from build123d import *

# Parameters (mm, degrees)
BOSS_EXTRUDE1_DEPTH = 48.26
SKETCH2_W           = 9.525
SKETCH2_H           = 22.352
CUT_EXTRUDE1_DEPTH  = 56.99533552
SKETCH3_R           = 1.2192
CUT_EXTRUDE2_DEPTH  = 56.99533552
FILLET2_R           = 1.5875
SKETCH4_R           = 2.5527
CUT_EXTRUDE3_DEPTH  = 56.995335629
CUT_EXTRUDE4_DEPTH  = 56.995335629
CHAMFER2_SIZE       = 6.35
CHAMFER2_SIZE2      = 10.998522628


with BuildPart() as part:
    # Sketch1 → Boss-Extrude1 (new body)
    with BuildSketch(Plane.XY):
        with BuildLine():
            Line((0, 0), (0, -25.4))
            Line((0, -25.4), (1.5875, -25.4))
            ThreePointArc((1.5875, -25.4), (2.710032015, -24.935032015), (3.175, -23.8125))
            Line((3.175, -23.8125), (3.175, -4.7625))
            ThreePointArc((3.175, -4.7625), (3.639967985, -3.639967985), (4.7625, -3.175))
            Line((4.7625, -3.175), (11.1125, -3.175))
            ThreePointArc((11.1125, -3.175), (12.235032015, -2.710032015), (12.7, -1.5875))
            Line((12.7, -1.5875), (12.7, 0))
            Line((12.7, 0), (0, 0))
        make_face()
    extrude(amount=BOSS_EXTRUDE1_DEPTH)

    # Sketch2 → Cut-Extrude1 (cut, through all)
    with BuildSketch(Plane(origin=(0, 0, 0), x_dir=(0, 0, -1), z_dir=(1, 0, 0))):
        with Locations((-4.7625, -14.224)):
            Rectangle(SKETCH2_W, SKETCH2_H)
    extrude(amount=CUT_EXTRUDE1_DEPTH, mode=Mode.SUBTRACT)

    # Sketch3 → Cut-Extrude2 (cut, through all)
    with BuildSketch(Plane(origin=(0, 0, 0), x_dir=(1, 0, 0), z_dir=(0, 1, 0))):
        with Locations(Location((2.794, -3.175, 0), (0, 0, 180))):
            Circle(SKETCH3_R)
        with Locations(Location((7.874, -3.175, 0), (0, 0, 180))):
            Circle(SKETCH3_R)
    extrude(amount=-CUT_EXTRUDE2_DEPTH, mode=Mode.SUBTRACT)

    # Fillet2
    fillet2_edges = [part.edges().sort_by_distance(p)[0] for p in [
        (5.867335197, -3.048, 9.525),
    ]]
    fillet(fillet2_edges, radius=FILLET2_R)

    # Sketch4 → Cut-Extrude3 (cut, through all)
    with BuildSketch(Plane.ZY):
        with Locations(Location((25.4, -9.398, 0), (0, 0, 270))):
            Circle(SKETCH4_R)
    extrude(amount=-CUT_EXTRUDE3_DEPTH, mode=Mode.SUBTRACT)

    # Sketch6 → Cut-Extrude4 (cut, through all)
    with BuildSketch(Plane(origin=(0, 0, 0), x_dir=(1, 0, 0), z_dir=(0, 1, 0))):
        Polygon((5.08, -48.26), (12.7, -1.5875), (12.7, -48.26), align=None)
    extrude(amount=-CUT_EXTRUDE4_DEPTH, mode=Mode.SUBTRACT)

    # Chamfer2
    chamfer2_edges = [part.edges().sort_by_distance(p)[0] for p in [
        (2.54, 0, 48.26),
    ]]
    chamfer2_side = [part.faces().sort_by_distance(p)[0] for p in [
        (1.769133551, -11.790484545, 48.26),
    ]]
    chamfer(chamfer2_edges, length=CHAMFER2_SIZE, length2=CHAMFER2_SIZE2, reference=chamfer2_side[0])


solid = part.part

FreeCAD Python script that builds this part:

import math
import FreeCAD as App
import Part
import Sketcher

V = App.Vector
Q = App.Units.Quantity


def edges_at(feature, points):
    """Names of the edges that pass closest to the given points."""
    edges = feature.Shape.Edges
    near = lambda p: min(range(len(edges)), key=lambda i: edges[i].distToShape(Part.Vertex(*p))[0])
    return sorted({f"Edge{near(p) + 1}" for p in points})


def add_polygon(sketch, points):
    """Adds a closed chain of lines whose ends are joined by coincident constraints."""
    first, n = sketch.GeometryCount, len(points)
    for a, b in zip(points, points[1:] + points[:1]):
        sketch.addGeometry(Part.LineSegment(App.Vector(*a, 0), App.Vector(*b, 0)), False)
    for i in range(n):
        sketch.addConstraint(Sketcher.Constraint("Coincident", first + i, 2, first + (i + 1) % n, 1))

doc = App.newDocument("Part")
params = doc.addObject("Spreadsheet::Sheet", "Params")
for row, (alias, value) in enumerate([
    ("sketch1_height", "1 in"),
    ("sketch1_width", "0.5 in"),
    ("sketch1_radius", "0.0625 in"),
    ("sketch1_width2", "0.25 in"),
    ("pad1_length", "1.9 in"),
    ("sketch2_width", "0.88 in"),
    ("sketch2_height", "0.375 in"),
    ("sketch3_diameter", "0.096 in"),
    ("fillet_radius", "0.0625 in"),
    ("sketch4_diameter", "0.201 in"),
    ("sketch5_width", "0.3 in"),
    ("chamfer_size", "0.25 in"),
    ("chamfer_size2", "10.998523 mm"),
], start=1):
    params.set(f"A{row}", alias)
    params.set(f"B{row}", "=" + value)
    params.setAlias(f"B{row}", alias)

body = doc.addObject("PartDesign::Body", "Body")

sketch1 = body.newObject("Sketcher::SketchObject", "Sketch")
sketch1.AttachmentSupport = (doc.getObject("XY_Plane"), [""])
sketch1.MapMode = "FlatFace"
sketch1.addGeometry([
    Part.LineSegment(V(0, 0, 0), V(0, -25.4, 0)),
    Part.LineSegment(V(0, -25.4, 0), V(1.5875, -25.4, 0)),
    Part.ArcOfCircle(Part.Circle(V(1.5875, -23.8125, 0), V(0, 0, 1), 1.5875), math.radians(-90), math.radians(0)),
    Part.LineSegment(V(3.175, -23.8125, 0), V(3.175, -4.7625, 0)),
    Part.ArcOfCircle(Part.Circle(V(4.7625, -4.7625, 0), V(0, 0, 1), 1.5875), math.radians(90), math.radians(180)),
    Part.LineSegment(V(4.7625, -3.175, 0), V(11.1125, -3.175, 0)),
    Part.ArcOfCircle(Part.Circle(V(11.1125, -1.5875, 0), V(0, 0, 1), 1.5875), math.radians(-90), math.radians(0)),
    Part.LineSegment(V(12.7, -1.5875, 0), V(12.7, 0, 0)),
    Part.LineSegment(V(12.7, 0, 0), V(0, 0, 0)),
], False)
sketch1.addConstraint([
    Sketcher.Constraint("Coincident", 0, 2, 1, 1),
    Sketcher.Constraint("Tangent", 1, 2, 2, 1),
    Sketcher.Constraint("Tangent", 2, 2, 3, 1),
    Sketcher.Constraint("Tangent", 3, 2, 4, 2),
    Sketcher.Constraint("Tangent", 4, 1, 5, 1),
    Sketcher.Constraint("Tangent", 5, 2, 6, 1),
    Sketcher.Constraint("Tangent", 6, 2, 7, 1),
    Sketcher.Constraint("Coincident", 7, 2, 8, 1),
    Sketcher.Constraint("Coincident", 8, 2, 0, 1),
    Sketcher.Constraint("Vertical", 0),
    Sketcher.Constraint("Horizontal", 1),
    Sketcher.Constraint("Vertical", 3),
    Sketcher.Constraint("Horizontal", 5),
    Sketcher.Constraint("Vertical", 7),
    Sketcher.Constraint("Horizontal", 8),
    Sketcher.Constraint("Coincident", 8, 2, -1, 1),
    Sketcher.Constraint("Equal", 2, 4),
    Sketcher.Constraint("Equal", 4, 6),
    Sketcher.Constraint("Equal", 1, 7),
    Sketcher.Constraint("DistanceY", 0, 2, 0, 1, Q("1 in")),
    Sketcher.Constraint("DistanceX", 8, 2, 8, 1, Q("0.5 in")),
    Sketcher.Constraint("Radius", 2, Q("0.0625 in")),
    Sketcher.Constraint("DistanceX", 5, 1, 5, 2, Q("0.25 in")),
])
sketch1.setExpression("Constraints[19]", "Params.sketch1_height")
sketch1.setExpression("Constraints[20]", "Params.sketch1_width")
sketch1.setExpression("Constraints[21]", "Params.sketch1_radius")
sketch1.setExpression("Constraints[22]", "Params.sketch1_width2")
pad1 = body.newObject("PartDesign::Pad", "Pad")
pad1.Profile = sketch1
pad1.setExpression("Length", "Params.pad1_length")

sketch2 = body.newObject("Sketcher::SketchObject", "Sketch001")
sketch2.AttachmentSupport = (doc.getObject("YZ_Plane"), [""])
sketch2.MapMode = "FlatFace"
add_polygon(sketch2, [(-3.048, 9.525), (-25.4, 9.525), (-25.4, 0), (-3.048, 0)])
sketch2.addConstraint([
    Sketcher.Constraint("Horizontal", 0),
    Sketcher.Constraint("Vertical", 1),
    Sketcher.Constraint("Horizontal", 2),
    Sketcher.Constraint("Vertical", 3),
    Sketcher.Constraint("PointOnObject", 1, 2, -1),
    Sketcher.Constraint("DistanceX", 0, 2, -1, 1, Q("1 in")),
    Sketcher.Constraint("DistanceX", 0, 2, 0, 1, Q("0.88 in")),
    Sketcher.Constraint("DistanceY", 1, 2, 1, 1, Q("0.375 in")),
])
sketch2.setExpression("Constraints[10]", "Params.sketch2_width")
sketch2.setExpression("Constraints[11]", "Params.sketch2_height")
pocket1 = body.newObject("PartDesign::Pocket", "Pocket")
pocket1.Profile = sketch2
pocket1.Type = "ThroughAll"
pocket1.Reversed = True

sketch3 = body.newObject("Sketcher::SketchObject", "Sketch002")
sketch3.AttachmentSupport = (doc.getObject("XZ_Plane"), [""])
sketch3.MapMode = "FlatFace"
sketch3.addGeometry([
    Part.Circle(V(2.794, 3.175, 0), V(0, 0, 1), 1.2192),
    Part.Circle(V(7.874, 3.175, 0), V(0, 0, 1), 1.2192),
], False)
sketch3.addConstraint([
    Sketcher.Constraint("Equal", 0, 1),
    Sketcher.Constraint("Horizontal", 0, 3, 1, 3),
    Sketcher.Constraint("Diameter", 0, Q("0.096 in")),
    Sketcher.Constraint("DistanceX", 0, 3, 1, 3, Q("0.2 in")),
    Sketcher.Constraint("DistanceX", -1, 1, 0, 3, Q("0.11 in")),
    Sketcher.Constraint("DistanceY", -1, 1, 0, 3, Q("0.125 in")),
])
sketch3.setExpression("Constraints[2]", "Params.sketch3_diameter")
pocket2 = body.newObject("PartDesign::Pocket", "Pocket001")
pocket2.Profile = sketch3
pocket2.Type = "ThroughAll"
pocket2.Reversed = True
doc.recompute()

fillet = body.newObject("PartDesign::Fillet", "Fillet")
fillet.Base = (pocket2, edges_at(pocket2, [(5.867, -3.048, 9.525)]))
fillet.setExpression("Radius", "Params.fillet_radius")

sketch4 = body.newObject("Sketcher::SketchObject", "Sketch003")
sketch4.AttachmentSupport = (doc.getObject("YZ_Plane"), [""])
sketch4.MapMode = "FlatFace"
sketch4.addGeometry(Part.Circle(V(-9.398, 25.4, 0), V(0, 0, 1), 2.5527), False)
sketch4.addConstraint([
    Sketcher.Constraint("Diameter", 0, Q("0.201 in")),
    Sketcher.Constraint("DistanceY", -1, 1, 0, 3, Q("1 in")),
    Sketcher.Constraint("DistanceX", 0, 3, -1, 1, Q("0.37 in")),
])
sketch4.setExpression("Constraints[0]", "Params.sketch4_diameter")
pocket3 = body.newObject("PartDesign::Pocket", "Pocket002")
pocket3.Profile = sketch4
pocket3.Type = "ThroughAll"
pocket3.Reversed = True

sketch5 = body.newObject("Sketcher::SketchObject", "Sketch004")
sketch5.AttachmentSupport = (doc.getObject("XZ_Plane"), [""])
sketch5.MapMode = "FlatFace"
add_polygon(sketch5, [(12.7, 1.5875), (5.08, 48.26), (12.7, 48.26)])
sketch5.addConstraint([
    Sketcher.Constraint("Horizontal", 1),
    Sketcher.Constraint("Vertical", 2),
    Sketcher.Constraint("DistanceX", 1, 1, 1, 2, Q("0.3 in")),
    Sketcher.Constraint("DistanceX", -1, 1, 0, 2, Q("0.2 in")),
    Sketcher.Constraint("DistanceY", -1, 1, 0, 2, Q("1.9 in")),
    Sketcher.Constraint("DistanceY", 2, 2, 2, 1, Q("1.8375 in")),
])
sketch5.setExpression("Constraints[5]", "Params.sketch5_width")
pocket4 = body.newObject("PartDesign::Pocket", "Pocket003")
pocket4.Profile = sketch5
pocket4.Type = "ThroughAll"
pocket4.Reversed = True
doc.recompute()

chamfer = body.newObject("PartDesign::Chamfer", "Chamfer")
chamfer.Base = (pocket4, edges_at(pocket4, [(2.54, 0, 48.26)]))
chamfer.ChamferType = "Two distances"
chamfer.setExpression("Size", "Params.chamfer_size")
chamfer.setExpression("Size2", "Params.chamfer_size2")
chamfer.FlipDirection = True

doc.recompute()
